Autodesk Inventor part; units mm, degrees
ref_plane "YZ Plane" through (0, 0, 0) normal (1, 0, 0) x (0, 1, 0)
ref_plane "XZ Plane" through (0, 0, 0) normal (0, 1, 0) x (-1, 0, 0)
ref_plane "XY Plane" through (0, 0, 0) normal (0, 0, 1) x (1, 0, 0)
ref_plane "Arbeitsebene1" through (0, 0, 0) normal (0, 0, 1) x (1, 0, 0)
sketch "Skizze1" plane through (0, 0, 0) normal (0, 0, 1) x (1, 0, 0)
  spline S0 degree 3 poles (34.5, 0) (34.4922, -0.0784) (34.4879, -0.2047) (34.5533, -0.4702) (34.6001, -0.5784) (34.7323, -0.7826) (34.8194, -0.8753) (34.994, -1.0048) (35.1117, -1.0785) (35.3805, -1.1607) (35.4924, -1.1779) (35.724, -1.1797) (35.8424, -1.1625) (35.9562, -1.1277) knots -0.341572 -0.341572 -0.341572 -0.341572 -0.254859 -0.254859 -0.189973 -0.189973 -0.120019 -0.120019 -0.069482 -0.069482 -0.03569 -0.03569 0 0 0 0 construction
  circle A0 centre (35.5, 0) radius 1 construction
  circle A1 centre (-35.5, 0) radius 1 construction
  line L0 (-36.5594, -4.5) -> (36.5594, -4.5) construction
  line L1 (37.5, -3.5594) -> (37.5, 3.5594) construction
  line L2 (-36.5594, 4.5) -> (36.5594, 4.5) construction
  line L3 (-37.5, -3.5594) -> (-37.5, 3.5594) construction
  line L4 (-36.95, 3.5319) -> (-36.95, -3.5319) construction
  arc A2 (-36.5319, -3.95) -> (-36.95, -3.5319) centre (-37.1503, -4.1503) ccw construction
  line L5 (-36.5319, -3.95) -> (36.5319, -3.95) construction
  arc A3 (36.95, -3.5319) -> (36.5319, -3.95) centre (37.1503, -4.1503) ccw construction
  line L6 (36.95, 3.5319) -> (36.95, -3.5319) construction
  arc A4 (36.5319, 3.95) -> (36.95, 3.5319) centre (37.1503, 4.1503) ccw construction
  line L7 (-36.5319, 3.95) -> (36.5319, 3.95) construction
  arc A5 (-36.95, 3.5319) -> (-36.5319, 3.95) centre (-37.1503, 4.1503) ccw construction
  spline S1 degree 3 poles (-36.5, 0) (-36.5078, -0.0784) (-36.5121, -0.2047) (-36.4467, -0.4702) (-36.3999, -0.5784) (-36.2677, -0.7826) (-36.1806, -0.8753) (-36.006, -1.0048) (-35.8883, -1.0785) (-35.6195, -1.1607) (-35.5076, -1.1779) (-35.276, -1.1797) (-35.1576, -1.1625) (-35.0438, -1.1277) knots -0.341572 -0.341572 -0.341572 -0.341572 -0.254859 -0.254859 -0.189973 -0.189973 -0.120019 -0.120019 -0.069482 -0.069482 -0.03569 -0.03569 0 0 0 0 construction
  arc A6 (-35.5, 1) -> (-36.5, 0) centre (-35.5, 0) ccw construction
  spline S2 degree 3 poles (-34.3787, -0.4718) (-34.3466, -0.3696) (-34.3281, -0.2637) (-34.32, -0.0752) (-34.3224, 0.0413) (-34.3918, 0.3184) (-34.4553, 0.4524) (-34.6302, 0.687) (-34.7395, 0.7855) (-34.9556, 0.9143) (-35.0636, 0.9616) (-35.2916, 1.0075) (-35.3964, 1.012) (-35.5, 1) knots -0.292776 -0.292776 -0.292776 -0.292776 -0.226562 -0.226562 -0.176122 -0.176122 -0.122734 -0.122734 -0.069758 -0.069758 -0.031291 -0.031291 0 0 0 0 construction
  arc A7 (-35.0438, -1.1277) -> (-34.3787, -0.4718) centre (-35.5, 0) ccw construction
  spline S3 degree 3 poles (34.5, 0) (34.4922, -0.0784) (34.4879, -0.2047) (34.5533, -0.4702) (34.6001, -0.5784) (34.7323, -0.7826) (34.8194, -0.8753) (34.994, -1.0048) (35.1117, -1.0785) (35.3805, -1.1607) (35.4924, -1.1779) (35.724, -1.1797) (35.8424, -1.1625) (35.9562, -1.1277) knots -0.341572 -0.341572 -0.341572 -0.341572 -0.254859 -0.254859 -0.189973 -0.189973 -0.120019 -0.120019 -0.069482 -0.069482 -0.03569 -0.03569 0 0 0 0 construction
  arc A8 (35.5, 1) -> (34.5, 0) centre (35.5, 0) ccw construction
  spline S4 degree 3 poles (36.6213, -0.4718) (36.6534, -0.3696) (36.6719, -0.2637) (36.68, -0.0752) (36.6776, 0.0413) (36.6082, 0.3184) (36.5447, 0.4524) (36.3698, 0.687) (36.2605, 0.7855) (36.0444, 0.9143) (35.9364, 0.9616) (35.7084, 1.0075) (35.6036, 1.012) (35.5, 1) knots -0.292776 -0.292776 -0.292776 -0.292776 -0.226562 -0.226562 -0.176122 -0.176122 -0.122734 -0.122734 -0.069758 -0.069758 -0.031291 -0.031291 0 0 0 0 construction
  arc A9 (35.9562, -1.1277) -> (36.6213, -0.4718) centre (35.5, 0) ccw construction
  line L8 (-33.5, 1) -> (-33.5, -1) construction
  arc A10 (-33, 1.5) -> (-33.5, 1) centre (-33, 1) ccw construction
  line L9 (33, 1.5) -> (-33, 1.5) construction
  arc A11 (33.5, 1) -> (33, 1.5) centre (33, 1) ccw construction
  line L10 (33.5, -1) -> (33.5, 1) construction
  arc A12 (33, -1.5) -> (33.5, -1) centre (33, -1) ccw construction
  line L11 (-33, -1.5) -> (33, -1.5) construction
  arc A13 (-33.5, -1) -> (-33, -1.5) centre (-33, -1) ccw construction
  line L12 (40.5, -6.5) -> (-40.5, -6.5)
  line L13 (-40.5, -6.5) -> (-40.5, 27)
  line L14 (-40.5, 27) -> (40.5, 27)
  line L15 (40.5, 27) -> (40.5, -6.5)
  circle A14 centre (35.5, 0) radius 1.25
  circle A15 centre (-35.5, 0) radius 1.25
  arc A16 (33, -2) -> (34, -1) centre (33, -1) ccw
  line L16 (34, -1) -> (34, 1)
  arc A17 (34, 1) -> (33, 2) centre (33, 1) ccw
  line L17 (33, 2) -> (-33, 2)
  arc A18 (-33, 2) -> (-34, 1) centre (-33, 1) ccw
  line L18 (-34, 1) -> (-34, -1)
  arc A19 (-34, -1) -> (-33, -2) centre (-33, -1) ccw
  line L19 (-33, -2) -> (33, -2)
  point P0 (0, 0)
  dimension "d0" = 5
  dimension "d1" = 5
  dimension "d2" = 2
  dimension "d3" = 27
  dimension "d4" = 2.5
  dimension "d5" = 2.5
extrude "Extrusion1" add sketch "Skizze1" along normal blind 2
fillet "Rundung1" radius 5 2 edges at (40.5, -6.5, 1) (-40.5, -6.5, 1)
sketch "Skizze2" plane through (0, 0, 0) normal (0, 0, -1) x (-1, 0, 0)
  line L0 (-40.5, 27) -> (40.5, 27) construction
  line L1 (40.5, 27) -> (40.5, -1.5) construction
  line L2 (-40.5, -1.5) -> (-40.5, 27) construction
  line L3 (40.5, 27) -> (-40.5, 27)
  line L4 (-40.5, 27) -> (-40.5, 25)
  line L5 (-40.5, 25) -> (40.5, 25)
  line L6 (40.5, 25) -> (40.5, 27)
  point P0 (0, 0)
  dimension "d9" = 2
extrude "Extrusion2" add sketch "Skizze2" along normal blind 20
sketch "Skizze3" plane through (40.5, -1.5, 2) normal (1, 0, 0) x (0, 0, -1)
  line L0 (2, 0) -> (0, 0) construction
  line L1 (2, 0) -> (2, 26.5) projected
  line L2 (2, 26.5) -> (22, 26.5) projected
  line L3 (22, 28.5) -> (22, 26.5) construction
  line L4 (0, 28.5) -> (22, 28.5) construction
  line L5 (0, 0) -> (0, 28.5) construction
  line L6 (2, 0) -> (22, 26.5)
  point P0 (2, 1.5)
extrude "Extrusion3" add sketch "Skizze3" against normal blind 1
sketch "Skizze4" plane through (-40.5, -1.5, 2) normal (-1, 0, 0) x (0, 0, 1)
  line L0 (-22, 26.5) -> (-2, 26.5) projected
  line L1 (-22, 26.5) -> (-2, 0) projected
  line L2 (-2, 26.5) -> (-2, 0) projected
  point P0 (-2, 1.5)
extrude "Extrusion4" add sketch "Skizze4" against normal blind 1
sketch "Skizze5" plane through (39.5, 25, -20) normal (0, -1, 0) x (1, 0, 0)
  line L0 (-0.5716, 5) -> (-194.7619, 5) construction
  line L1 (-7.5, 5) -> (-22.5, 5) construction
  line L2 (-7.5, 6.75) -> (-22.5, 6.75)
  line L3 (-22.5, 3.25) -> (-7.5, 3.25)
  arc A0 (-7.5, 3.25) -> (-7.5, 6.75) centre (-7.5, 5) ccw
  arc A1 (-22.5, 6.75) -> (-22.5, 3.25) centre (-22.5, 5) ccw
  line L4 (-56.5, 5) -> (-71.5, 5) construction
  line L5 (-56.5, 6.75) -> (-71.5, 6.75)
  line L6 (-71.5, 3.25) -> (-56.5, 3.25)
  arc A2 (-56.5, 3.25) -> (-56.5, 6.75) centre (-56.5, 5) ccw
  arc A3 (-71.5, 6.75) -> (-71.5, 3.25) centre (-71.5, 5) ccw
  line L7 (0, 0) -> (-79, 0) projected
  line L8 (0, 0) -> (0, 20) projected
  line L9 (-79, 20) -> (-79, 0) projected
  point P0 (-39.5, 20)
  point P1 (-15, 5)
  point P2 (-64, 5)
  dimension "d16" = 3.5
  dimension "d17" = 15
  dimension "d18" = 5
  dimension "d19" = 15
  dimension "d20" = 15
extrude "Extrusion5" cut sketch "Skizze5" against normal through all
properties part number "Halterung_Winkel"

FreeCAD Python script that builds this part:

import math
import FreeCAD as App
import Part
import Sketcher
Q = App.Units.Quantity


def edges_at(feature, points):
    """Names of the edges that pass closest to the given points."""
    edges = feature.Shape.Edges
    near = lambda p: min(range(len(edges)), key=lambda i: edges[i].distToShape(Part.Vertex(*p))[0])
    return sorted({f"Edge{near(p) + 1}" for p in points})

doc = App.newDocument("Part")
params = doc.addObject("Spreadsheet::Sheet", "Params")
for row, (alias, value) in enumerate([
    ("sketch1_radius", "1 mm"),
    ("sketch1_diameter", "2.5 mm"),
    ("sketch1_height", "2 mm"),
    ("sketch1_width", "81 mm"),
    ("sketch1_height2", "33.5 mm"),
    ("pad1_length", "2 mm"),
    ("fillet_radius", "5 mm"),
    ("sketch2_height", "2 mm"),
    ("sketch2_width", "81 mm"),
    ("pad2_length", "20 mm"),
    ("sketch3_height", "20 mm"),
    ("sketch3_width", "26.5 mm"),
    ("pad3_length", "1 mm"),
    ("sketch4_height", "20 mm"),
    ("sketch4_width", "26.5 mm"),
    ("pad4_length", "1 mm"),
    ("sketch5_width", "15 mm"),
    ("sketch5_radius", "1.75 mm"),
], start=1):
    params.set(f"A{row}", alias)
    params.set(f"B{row}", "=" + value)
    params.setAlias(f"B{row}", alias)

body = doc.addObject("PartDesign::Body", "Body")

# Sketch on XY plane
sketch1 = body.newObject("Sketcher::SketchObject", "Sketch")
sketch1.AttachmentSupport = (doc.getObject("XY_Plane"), [""])
sketch1.MapMode = "FlatFace"
sketch1.addGeometry(Part.LineSegment(App.Vector(-40.5, -6.5, 0), App.Vector(40.5, -6.5, 0)), False)
sketch1.addGeometry(Part.LineSegment(App.Vector(40.5, -6.5, 0), App.Vector(40.5, 27, 0)), False)
sketch1.addGeometry(Part.LineSegment(App.Vector(40.5, 27, 0), App.Vector(-40.5, 27, 0)), False)
sketch1.addGeometry(Part.LineSegment(App.Vector(-40.5, 27, 0), App.Vector(-40.5, -6.5, 0)), False)
sketch1.addGeometry(Part.Circle(App.Vector(-35.5, 0, 0), App.Vector(0, 0, 1), 1.2), False)
sketch1.addGeometry(Part.ArcOfCircle(Part.Circle(App.Vector(33, -1, 0), App.Vector(0, 0, 1), 1), math.radians(-90), math.radians(0)), False)
sketch1.addGeometry(Part.LineSegment(App.Vector(33, -2, 0), App.Vector(-33, -2, 0)), False)
sketch1.addGeometry(Part.ArcOfCircle(Part.Circle(App.Vector(-33, -1, 0), App.Vector(0, 0, 1), 1), math.radians(180), math.radians(270)), False)
sketch1.addGeometry(Part.LineSegment(App.Vector(-34, -1, 0), App.Vector(-34, 1, 0)), False)
sketch1.addGeometry(Part.ArcOfCircle(Part.Circle(App.Vector(-33, 1, 0), App.Vector(0, 0, 1), 1), math.radians(90), math.radians(180)), False)
sketch1.addGeometry(Part.LineSegment(App.Vector(-33, 2, 0), App.Vector(33, 2, 0)), False)
sketch1.addGeometry(Part.ArcOfCircle(Part.Circle(App.Vector(33, 1, 0), App.Vector(0, 0, 1), 1), math.radians(0), math.radians(90)), False)
sketch1.addGeometry(Part.LineSegment(App.Vector(34, 1, 0), App.Vector(34, -1, 0)), False)
sketch1.addGeometry(Part.Circle(App.Vector(35.5, 0, 0), App.Vector(0, 0, 1), 1.2), False)
sketch1.addConstraint(Sketcher.Constraint("Coincident", 0, 2, 1, 1))
sketch1.addConstraint(Sketcher.Constraint("Coincident", 1, 2, 2, 1))
sketch1.addConstraint(Sketcher.Constraint("Coincident", 2, 2, 3, 1))
sketch1.addConstraint(Sketcher.Constraint("Coincident", 3, 2, 0, 1))
sketch1.addConstraint(Sketcher.Constraint("Tangent", 5, 1, 6, 1))
sketch1.addConstraint(Sketcher.Constraint("Tangent", 6, 2, 7, 2))
sketch1.addConstraint(Sketcher.Constraint("Tangent", 7, 1, 8, 1))
sketch1.addConstraint(Sketcher.Constraint("Tangent", 8, 2, 9, 2))
sketch1.addConstraint(Sketcher.Constraint("Tangent", 9, 1, 10, 1))
sketch1.addConstraint(Sketcher.Constraint("Tangent", 10, 2, 11, 2))
sketch1.addConstraint(Sketcher.Constraint("Tangent", 11, 1, 12, 1))
sketch1.addConstraint(Sketcher.Constraint("Tangent", 12, 2, 5, 2))
sketch1.addConstraint(Sketcher.Constraint("Horizontal", 0))
sketch1.addConstraint(Sketcher.Constraint("Vertical", 1))
sketch1.addConstraint(Sketcher.Constraint("Horizontal", 2))
sketch1.addConstraint(Sketcher.Constraint("Vertical", 3))
sketch1.addConstraint(Sketcher.Constraint("Horizontal", 6))
sketch1.addConstraint(Sketcher.Constraint("Vertical", 8))
sketch1.addConstraint(Sketcher.Constraint("Horizontal", 10))
sketch1.addConstraint(Sketcher.Constraint("Vertical", 12))
sketch1.addConstraint(Sketcher.Constraint("Equal", 5, 7))
sketch1.addConstraint(Sketcher.Constraint("Equal", 7, 9))
sketch1.addConstraint(Sketcher.Constraint("Equal", 9, 11))
sketch1.addConstraint(Sketcher.Constraint("Equal", 4, 13))
sketch1.addConstraint(Sketcher.Constraint("Symmetric", 5, 3, 9, 3, -1, 1))
sketch1.addConstraint(Sketcher.Constraint("Symmetric", 4, 3, 13, 3, -1, 1))
sketch1.addConstraint(Sketcher.Constraint("PointOnObject", 4, 3, -1))
sketch1.addConstraint(Sketcher.Constraint("Radius", 5, Q("1 mm")))
sketch1.addConstraint(Sketcher.Constraint("Diameter", 4, Q("2.5 mm")))
sketch1.addConstraint(Sketcher.Constraint("DistanceY", 8, 1, 8, 2, Q("2 mm")))
sketch1.addConstraint(Sketcher.Constraint("DistanceY", -1, 1, 1, 2, Q("27 mm")))
sketch1.addConstraint(Sketcher.Constraint("DistanceX", 13, 3, 0, 2, Q("5 mm")))
sketch1.addConstraint(Sketcher.Constraint("DistanceX", 2, 2, 4, 3, Q("5 mm")))
sketch1.addConstraint(Sketcher.Constraint("DistanceX", 4, 3, 7, 3, Q("2.5 mm")))
sketch1.addConstraint(Sketcher.Constraint("DistanceX", 0, 1, 0, 2, Q("81 mm")))
sketch1.addConstraint(Sketcher.Constraint("DistanceY", 1, 1, 1, 2, Q("33.5 mm")))
sketch1.setExpression("Constraints[27]", "Params.sketch1_radius")
sketch1.setExpression("Constraints[28]", "Params.sketch1_diameter")
sketch1.setExpression("Constraints[29]", "Params.sketch1_height")
sketch1.setExpression("Constraints[34]", "Params.sketch1_width")
sketch1.setExpression("Constraints[35]", "Params.sketch1_height2")
pad1 = body.newObject("PartDesign::Pad", "Pad")
pad1.Profile = sketch1
pad1.setExpression("Length", "Params.pad1_length")
doc.recompute()

fillet = body.newObject("PartDesign::Fillet", "Fillet")
fillet.Base = (pad1, edges_at(pad1, [(40.5, -6.5, 1), (-40.5, -6.5, 1)]))
fillet.setExpression("Radius", "Params.fillet_radius")

# Sketch on XY plane
sketch2 = body.newObject("Sketcher::SketchObject", "Sketch001")
sketch2.AttachmentSupport = (doc.getObject("XY_Plane"), [""])
sketch2.MapMode = "FlatFace"
sketch2.addGeometry(Part.LineSegment(App.Vector(-40.5, 25, 0), App.Vector(-40.5, 27, 0)), False)
sketch2.addGeometry(Part.LineSegment(App.Vector(-40.5, 27, 0), App.Vector(40.5, 27, 0)), False)
sketch2.addGeometry(Part.LineSegment(App.Vector(40.5, 27, 0), App.Vector(40.5, 25, 0)), False)
sketch2.addGeometry(Part.LineSegment(App.Vector(40.5, 25, 0), App.Vector(-40.5, 25, 0)), False)
sketch2.addConstraint(Sketcher.Constraint("Coincident", 0, 2, 1, 1))
sketch2.addConstraint(Sketcher.Constraint("Coincident", 1, 2, 2, 1))
sketch2.addConstraint(Sketcher.Constraint("Coincident", 2, 2, 3, 1))
sketch2.addConstraint(Sketcher.Constraint("Coincident", 3, 2, 0, 1))
sketch2.addConstraint(Sketcher.Constraint("Vertical", 0))
sketch2.addConstraint(Sketcher.Constraint("Horizontal", 1))
sketch2.addConstraint(Sketcher.Constraint("Vertical", 2))
sketch2.addConstraint(Sketcher.Constraint("Horizontal", 3))
sketch2.addConstraint(Sketcher.Constraint("DistanceY", 0, 1, 0, 2, Q("2 mm")))
sketch2.addConstraint(Sketcher.Constraint("DistanceX", 1, 1, 1, 2, Q("81 mm")))
sketch2.addConstraint(Sketcher.Constraint("DistanceY", -1, 1, 0, 2, Q("27 mm")))
sketch2.addConstraint(Sketcher.Constraint("DistanceX", 0, 2, -1, 1, Q("40.5 mm")))
sketch2.setExpression("Constraints[8]", "Params.sketch2_height")
sketch2.setExpression("Constraints[9]", "Params.sketch2_width")
pad2 = body.newObject("PartDesign::Pad", "Pad001")
pad2.Profile = sketch2
pad2.setExpression("Length", "Params.pad2_length")
pad2.Reversed = True

# Sketch on YZ plane
sketch3 = body.newObject("Sketcher::SketchObject", "Sketch002")
sketch3.AttachmentSupport = (doc.getObject("YZ_Plane"), [""])
sketch3.MapMode = "FlatFace"
sketch3.AttachmentOffset = App.Placement(App.Vector(0, 0, 40.5), App.Rotation())
sketch3.addGeometry(Part.LineSegment(App.Vector(25, 0, 0), App.Vector(-2, 0, 0)), False)
sketch3.addGeometry(Part.LineSegment(App.Vector(-2, 0, 0), App.Vector(25, -20, 0)), False)
sketch3.addGeometry(Part.LineSegment(App.Vector(25, -20, 0), App.Vector(25, 0, 0)), False)
sketch3.addConstraint(Sketcher.Constraint("Coincident", 0, 2, 1, 1))
sketch3.addConstraint(Sketcher.Constraint("Coincident", 1, 2, 2, 1))
sketch3.addConstraint(Sketcher.Constraint("Coincident", 2, 2, 0, 1))
sketch3.addConstraint(Sketcher.Constraint("Horizontal", 0))
sketch3.addConstraint(Sketcher.Constraint("Vertical", 2))
sketch3.addConstraint(Sketcher.Constraint("PointOnObject", 0, 2, -1))
sketch3.addConstraint(Sketcher.Constraint("DistanceY", 2, 1, 2, 2, Q("20 mm")))
sketch3.addConstraint(Sketcher.Constraint("DistanceX", 0, 2, 0, 1, Q("26.5 mm")))
sketch3.addConstraint(Sketcher.Constraint("DistanceX", -1, 1, 1, 2, Q("25 mm")))
sketch3.setExpression("Constraints[6]", "Params.sketch3_height")
sketch3.setExpression("Constraints[7]", "Params.sketch3_width")
pad3 = body.newObject("PartDesign::Pad", "Pad002")
pad3.Profile = sketch3
pad3.setExpression("Length", "Params.pad3_length")
pad3.Reversed = True

# Sketch on YZ plane
sketch4 = body.newObject("Sketcher::SketchObject", "Sketch003")
sketch4.AttachmentSupport = (doc.getObject("YZ_Plane"), [""])
sketch4.MapMode = "FlatFace"
sketch4.AttachmentOffset = App.Placement(App.Vector(0, 0, -40.5), App.Rotation())
sketch4.addGeometry(Part.LineSegment(App.Vector(25, 0, 0), App.Vector(25, -20, 0)), False)
sketch4.addGeometry(Part.LineSegment(App.Vector(25, -20, 0), App.Vector(-2, 0, 0)), False)
sketch4.addGeometry(Part.LineSegment(App.Vector(-2, 0, 0), App.Vector(25, 0, 0)), False)
sketch4.addConstraint(Sketcher.Constraint("Coincident", 0, 2, 1, 1))
sketch4.addConstraint(Sketcher.Constraint("Coincident", 1, 2, 2, 1))
sketch4.addConstraint(Sketcher.Constraint("Coincident", 2, 2, 0, 1))
sketch4.addConstraint(Sketcher.Constraint("Vertical", 0))
sketch4.addConstraint(Sketcher.Constraint("Horizontal", 2))
sketch4.addConstraint(Sketcher.Constraint("PointOnObject", 1, 2, -1))
sketch4.addConstraint(Sketcher.Constraint("DistanceY", 0, 2, 0, 1, Q("20 mm")))
sketch4.addConstraint(Sketcher.Constraint("DistanceX", 2, 1, 2, 2, Q("26.5 mm")))
sketch4.addConstraint(Sketcher.Constraint("DistanceX", -1, 1, 0, 2, Q("25 mm")))
sketch4.setExpression("Constraints[6]", "Params.sketch4_height")
sketch4.setExpression("Constraints[7]", "Params.sketch4_width")
pad4 = body.newObject("PartDesign::Pad", "Pad003")
pad4.Profile = sketch4
pad4.setExpression("Length", "Params.pad4_length")

# Sketch on XZ plane
sketch5 = body.newObject("Sketcher::SketchObject", "Sketch004")
sketch5.AttachmentSupport = (doc.getObject("XZ_Plane"), [""])
sketch5.MapMode = "FlatFace"
sketch5.AttachmentOffset = App.Placement(App.Vector(0, 0, -25), App.Rotation())
sketch5.addGeometry(Part.ArcOfCircle(Part.Circle(App.Vector(32, -15, 0), App.Vector(0, 0, 1), 1.8), math.radians(-90), math.radians(90)), False)
sketch5.addGeometry(Part.LineSegment(App.Vector(32, -13.2, 0), App.Vector(17, -13.2, 0)), False)
sketch5.addGeometry(Part.ArcOfCircle(Part.Circle(App.Vector(17, -15, 0), App.Vector(0, 0, 1), 1.8), math.radians(90), math.radians(270)), False)
sketch5.addGeometry(Part.LineSegment(App.Vector(17, -16.8, 0), App.Vector(32, -16.8, 0)), False)
sketch5.addGeometry(Part.ArcOfCircle(Part.Circle(App.Vector(-17, -15, 0), App.Vector(0, 0, 1), 1.8), math.radians(-90), math.radians(90)), False)
sketch5.addGeometry(Part.LineSegment(App.Vector(-17, -13.2, 0), App.Vector(-32, -13.2, 0)), False)
sketch5.addGeometry(Part.ArcOfCircle(Part.Circle(App.Vector(-32, -15, 0), App.Vector(0, 0, 1), 1.8), math.radians(90), math.radians(270)), False)
sketch5.addGeometry(Part.LineSegment(App.Vector(-32, -16.8, 0), App.Vector(-17, -16.8, 0)), False)
sketch5.addConstraint(Sketcher.Constraint("Tangent", 0, 2, 1, 1))
sketch5.addConstraint(Sketcher.Constraint("Tangent", 1, 2, 2, 1))
sketch5.addConstraint(Sketcher.Constraint("Tangent", 2, 2, 3, 1))
sketch5.addConstraint(Sketcher.Constraint("Tangent", 3, 2, 0, 1))
sketch5.addConstraint(Sketcher.Constraint("Tangent", 4, 2, 5, 1))
sketch5.addConstraint(Sketcher.Constraint("Tangent", 5, 2, 6, 1))
sketch5.addConstraint(Sketcher.Constraint("Tangent", 6, 2, 7, 1))
sketch5.addConstraint(Sketcher.Constraint("Tangent", 7, 2, 4, 1))
sketch5.addConstraint(Sketcher.Constraint("Horizontal", 1))
sketch5.addConstraint(Sketcher.Constraint("Horizontal", 3))
sketch5.addConstraint(Sketcher.Constraint("Horizontal", 5))
sketch5.addConstraint(Sketcher.Constraint("Horizontal", 7))
sketch5.addConstraint(Sketcher.Constraint("Equal", 2, 4))
sketch5.addConstraint(Sketcher.Constraint("Symmetric", 2, 3, 4, 3, -2))
sketch5.addConstraint(Sketcher.Constraint("Equal", 3, 5))
sketch5.addConstraint(Sketcher.Constraint("DistanceX", 1, 2, 1, 1, Q("15 mm")))
sketch5.addConstraint(Sketcher.Constraint("Radius", 0, Q("1.75 mm")))
sketch5.addConstraint(Sketcher.Constraint("DistanceY", 0, 3, -1, 1, Q("15 mm")))
sketch5.addConstraint(Sketcher.Constraint("DistanceX", -1, 1, 0, 3, Q("32 mm")))
sketch5.setExpression("Constraints[15]", "Params.sketch5_width")
sketch5.setExpression("Constraints[16]", "Params.sketch5_radius")
pocket1 = body.newObject("PartDesign::Pocket", "Pocket")
pocket1.Profile = sketch5
pocket1.Type = "ThroughAll"

doc.recompute()
